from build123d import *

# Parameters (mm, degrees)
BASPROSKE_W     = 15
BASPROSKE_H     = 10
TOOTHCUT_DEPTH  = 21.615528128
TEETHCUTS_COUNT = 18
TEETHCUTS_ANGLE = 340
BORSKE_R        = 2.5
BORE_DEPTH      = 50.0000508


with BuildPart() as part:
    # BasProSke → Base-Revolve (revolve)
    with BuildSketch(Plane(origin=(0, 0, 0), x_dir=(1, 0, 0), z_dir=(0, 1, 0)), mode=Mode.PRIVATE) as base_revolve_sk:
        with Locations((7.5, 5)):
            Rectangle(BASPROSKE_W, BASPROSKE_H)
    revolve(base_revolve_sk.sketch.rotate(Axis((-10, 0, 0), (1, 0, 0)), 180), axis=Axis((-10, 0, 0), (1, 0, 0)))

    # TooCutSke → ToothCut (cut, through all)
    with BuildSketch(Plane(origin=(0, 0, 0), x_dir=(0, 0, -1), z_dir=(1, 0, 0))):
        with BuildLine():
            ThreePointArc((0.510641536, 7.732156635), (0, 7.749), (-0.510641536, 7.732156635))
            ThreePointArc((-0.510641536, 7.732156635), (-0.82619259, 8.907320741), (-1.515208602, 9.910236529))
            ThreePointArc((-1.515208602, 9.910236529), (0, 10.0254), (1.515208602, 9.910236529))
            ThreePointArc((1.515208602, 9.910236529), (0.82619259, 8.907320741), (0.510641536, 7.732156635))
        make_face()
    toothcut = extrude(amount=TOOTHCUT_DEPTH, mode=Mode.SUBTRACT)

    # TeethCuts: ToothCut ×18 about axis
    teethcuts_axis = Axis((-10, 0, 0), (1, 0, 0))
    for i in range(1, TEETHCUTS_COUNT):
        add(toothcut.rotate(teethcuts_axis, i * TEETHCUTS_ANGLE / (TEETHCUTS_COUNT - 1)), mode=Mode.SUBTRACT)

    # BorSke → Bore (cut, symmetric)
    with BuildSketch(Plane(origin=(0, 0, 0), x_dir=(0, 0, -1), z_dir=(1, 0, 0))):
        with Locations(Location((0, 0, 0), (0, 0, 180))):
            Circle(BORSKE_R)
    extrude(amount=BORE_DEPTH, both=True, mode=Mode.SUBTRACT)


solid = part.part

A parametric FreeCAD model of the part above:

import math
import FreeCAD as App
import Part
import Sketcher

V = App.Vector


def add_polygon(sketch, points):
    """Adds a closed chain of lines whose ends are joined by coincident constraints."""
    first, n = sketch.GeometryCount, len(points)
    for a, b in zip(points, points[1:] + points[:1]):
        sketch.addGeometry(Part.LineSegment(App.Vector(*a, 0), App.Vector(*b, 0)), False)
    for i in range(n):
        sketch.addConstraint(Sketcher.Constraint("Coincident", first + i, 2, first + (i + 1) % n, 1))

doc = App.newDocument("Part")
body = doc.addObject("PartDesign::Body", "Body")

# Sketch on XZ plane
sketch1 = body.newObject("Sketcher::SketchObject", "Sketch")
sketch1.AttachmentSupport = (doc.getObject("XZ_Plane"), [""])
sketch1.MapMode = "FlatFace"
add_polygon(sketch1, [(0, -10), (0, 0), (15, 0), (15, -10)])  # lines 0-3
sketch1.addConstraint(Sketcher.Constraint("Vertical", 0))
sketch1.addConstraint(Sketcher.Constraint("Horizontal", 1))
sketch1.addConstraint(Sketcher.Constraint("Vertical", 2))
sketch1.addConstraint(Sketcher.Constraint("Horizontal", 3))
sketch1.addConstraint(Sketcher.Constraint("Coincident", 0, 2, -1, 1))
sketch1.addConstraint(Sketcher.Constraint("DistanceX", 1, 1, 1, 2, 15.0))
sketch1.addConstraint(Sketcher.Constraint("DistanceY", 0, 1, 0, 2, 10.0))
revolution = body.newObject("PartDesign::Revolution", "Revolution")
revolution.Profile = sketch1
revolution.ReferenceAxis = (sketch1, ["H_Axis"])
revolution.Angle = 360

# Sketch on YZ plane
sketch2 = body.newObject("Sketcher::SketchObject", "Sketch001")
sketch2.AttachmentSupport = (doc.getObject("YZ_Plane"), [""])
sketch2.MapMode = "FlatFace"
sketch2.addGeometry(Part.ArcOfCircle(Part.Circle(V(0, 0, 0), V(0, 0, 1), 7.7), math.radians(-3.78), math.radians(3.78)), False)
sketch2.addGeometry(Part.ArcOfCircle(Part.Circle(V(7.4, -4.1, 0), V(0, 0, 1), 3.6), math.radians(46), math.radians(85)), False)
sketch2.addGeometry(Part.ArcOfCircle(Part.Circle(V(0, 0, 0), V(0, 0, 1), 10), math.radians(-8.69), math.radians(8.69)), False)
sketch2.addGeometry(Part.ArcOfCircle(Part.Circle(V(7.4, 4.1, 0), V(0, 0, 1), 3.6), math.radians(-85), math.radians(-46)), False)
sketch2.addConstraint(Sketcher.Constraint("Coincident", 0, 1, 1, 2))
sketch2.addConstraint(Sketcher.Constraint("Coincident", 1, 1, 2, 1))
sketch2.addConstraint(Sketcher.Constraint("Coincident", 2, 2, 3, 2))
sketch2.addConstraint(Sketcher.Constraint("Coincident", 3, 1, 0, 2))
sketch2.addConstraint(Sketcher.Constraint("Coincident", 0, 3, -1, 1))
sketch2.addConstraint(Sketcher.Constraint("Coincident", 2, 3, -1, 1))
sketch2.addConstraint(Sketcher.Constraint("Equal", 1, 3))
sketch2.addConstraint(Sketcher.Constraint("Symmetric", 1, 3, 3, 3, -1))
sketch2.addConstraint(Sketcher.Constraint("Radius", 1, 3.6))
sketch2.addConstraint(Sketcher.Constraint("Radius", 0, 7.749))
sketch2.addConstraint(Sketcher.Constraint("Radius", 2, 10.0254))
sketch2.addConstraint(Sketcher.Constraint("DistanceX", -1, 1, 1, 3, 7.399578))
sketch2.addConstraint(Sketcher.Constraint("DistanceY", 0, 1, -1, 1, 0.510642))
pocket1 = body.newObject("PartDesign::Pocket", "Pocket")
pocket1.Profile = sketch2
pocket1.Type = "ThroughAll"
pocket1.Reversed = True
doc.recompute()

polarpattern = body.newObject("PartDesign::PolarPattern", "PolarPattern")
polarpattern.Originals = [pocket1]
polarpattern.Axis = (doc.getObject("X_Axis"), [""])
polarpattern.Angle = 360
polarpattern.Occurrences = 18
body.Tip = polarpattern

# Sketch on YZ plane
sketch3 = body.newObject("Sketcher::SketchObject", "Sketch002")
sketch3.AttachmentSupport = (doc.getObject("YZ_Plane"), [""])
sketch3.MapMode = "FlatFace"
sketch3.addGeometry(Part.Circle(V(0, 0, 0), V(0, 0, 1), 2.5), False)
sketch3.addConstraint(Sketcher.Constraint("Coincident", 0, 3, -1, 1))
sketch3.addConstraint(Sketcher.Constraint("Diameter", 0, 5.0))
pocket2 = body.newObject("PartDesign::Pocket", "Pocket001")
pocket2.Profile = sketch3
pocket2.Length = 100.000102
pocket2.Midplane = True

doc.recompute()
